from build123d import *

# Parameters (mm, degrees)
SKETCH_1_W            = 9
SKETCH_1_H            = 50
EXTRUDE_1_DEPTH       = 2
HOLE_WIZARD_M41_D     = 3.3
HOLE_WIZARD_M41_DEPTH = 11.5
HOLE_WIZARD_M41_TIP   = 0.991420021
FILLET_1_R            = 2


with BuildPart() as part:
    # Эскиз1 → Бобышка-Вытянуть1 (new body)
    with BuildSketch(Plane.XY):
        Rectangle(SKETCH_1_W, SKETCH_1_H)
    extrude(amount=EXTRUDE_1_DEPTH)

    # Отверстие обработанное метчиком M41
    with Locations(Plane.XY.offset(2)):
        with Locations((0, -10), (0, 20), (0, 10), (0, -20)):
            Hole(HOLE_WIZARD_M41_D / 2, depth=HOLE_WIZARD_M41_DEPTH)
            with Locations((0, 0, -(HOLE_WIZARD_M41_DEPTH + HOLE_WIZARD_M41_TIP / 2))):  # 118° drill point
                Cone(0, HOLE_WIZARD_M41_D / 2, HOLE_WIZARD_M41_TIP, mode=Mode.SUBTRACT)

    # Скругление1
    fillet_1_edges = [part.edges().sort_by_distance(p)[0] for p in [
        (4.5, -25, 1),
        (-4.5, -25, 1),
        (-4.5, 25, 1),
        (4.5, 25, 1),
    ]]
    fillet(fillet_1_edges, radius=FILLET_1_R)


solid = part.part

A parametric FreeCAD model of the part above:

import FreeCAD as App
import Part
import Sketcher


def edges_at(feature, points):
    """Names of the edges that pass closest to the given points."""
    edges = feature.Shape.Edges
    near = lambda p: min(range(len(edges)), key=lambda i: edges[i].distToShape(Part.Vertex(*p))[0])
    return sorted({f"Edge{near(p) + 1}" for p in points})

doc = App.newDocument("Part")
body = doc.addObject("PartDesign::Body", "Body")

# Sketch on XY plane
sketch1 = body.newObject("Sketcher::SketchObject", "Sketch")
sketch1.AttachmentSupport = (doc.getObject("XY_Plane"), [""])
sketch1.MapMode = "FlatFace"
sketch1.addGeometry([
    Part.LineSegment(App.Vector(-4.5, 25, 0), App.Vector(-4.5, -25, 0)),
    Part.LineSegment(App.Vector(-4.5, -25, 0), App.Vector(4.5, -25, 0)),
    Part.LineSegment(App.Vector(4.5, -25, 0), App.Vector(4.5, 25, 0)),
    Part.LineSegment(App.Vector(4.5, 25, 0), App.Vector(-4.5, 25, 0)),
], False)
sketch1.addConstraint([
    Sketcher.Constraint("Coincident", 0, 2, 1, 1),
    Sketcher.Constraint("Coincident", 1, 2, 2, 1),
    Sketcher.Constraint("Coincident", 2, 2, 3, 1),
    Sketcher.Constraint("Coincident", 3, 2, 0, 1),
    Sketcher.Constraint("Vertical", 0),
    Sketcher.Constraint("Horizontal", 1),
    Sketcher.Constraint("Vertical", 2),
    Sketcher.Constraint("Horizontal", 3),
    Sketcher.Constraint("Symmetric", 0, 2, 2, 2, -1, 1),
    Sketcher.Constraint("DistanceX", 1, 1, 1, 2, 9.0),
    Sketcher.Constraint("DistanceY", 0, 2, 0, 1, 50.0),
])
pad1 = body.newObject("PartDesign::Pad", "Pad")
pad1.Profile = sketch1
pad1.Length = 2

# Sketch on XY plane
sketch2 = body.newObject("Sketcher::SketchObject", "Sketch001")
sketch2.AttachmentSupport = (doc.getObject("XY_Plane"), [""])
sketch2.MapMode = "FlatFace"
sketch2.AttachmentOffset = App.Placement(App.Vector(0, 0, 2), App.Rotation())
sketch2.addGeometry([
    Part.Circle(App.Vector(0, -10, 0), App.Vector(0, 0, 1), 1.65),
    Part.Circle(App.Vector(0, 20, 0), App.Vector(0, 0, 1), 1.65),
    Part.Circle(App.Vector(0, 10, 0), App.Vector(0, 0, 1), 1.65),
    Part.Circle(App.Vector(0, -20, 0), App.Vector(0, 0, 1), 1.65),
], False)
sketch2.addConstraint([
    Sketcher.Constraint("Equal", 0, 1),
    Sketcher.Constraint("Equal", 1, 2),
    Sketcher.Constraint("Equal", 2, 3),
    Sketcher.Constraint("Symmetric", 0, 3, 2, 3, -1, 1),
    Sketcher.Constraint("Symmetric", 1, 3, 3, 3, -1, 1),
    Sketcher.Constraint("PointOnObject", 0, 3, -2),
    Sketcher.Constraint("PointOnObject", 1, 3, -2),
    Sketcher.Constraint("Diameter", 0, 3.3),
    Sketcher.Constraint("DistanceY", 0, 3, -1, 1, 10.0),
    Sketcher.Constraint("DistanceY", -1, 1, 1, 3, 20.0),
])
doc.recompute()
hole = body.newObject("PartDesign::Hole", "Hole")
hole.Profile = sketch2
hole.ThreadType = "None"
hole.Diameter = 3.3
hole.DepthType = "Dimension"
hole.Depth = 11.5
hole.DrillPoint = "Angled"
hole.DrillPointAngle = 118
doc.recompute()

fillet = body.newObject("PartDesign::Fillet", "Fillet")
fillet.Base = (hole, edges_at(hole, [
    (4.5, -25, 1),
    (-4.5, -25, 1),
    (-4.5, 25, 1),
    (4.5, 25, 1),
]))
fillet.Radius = 2

doc.recompute()
